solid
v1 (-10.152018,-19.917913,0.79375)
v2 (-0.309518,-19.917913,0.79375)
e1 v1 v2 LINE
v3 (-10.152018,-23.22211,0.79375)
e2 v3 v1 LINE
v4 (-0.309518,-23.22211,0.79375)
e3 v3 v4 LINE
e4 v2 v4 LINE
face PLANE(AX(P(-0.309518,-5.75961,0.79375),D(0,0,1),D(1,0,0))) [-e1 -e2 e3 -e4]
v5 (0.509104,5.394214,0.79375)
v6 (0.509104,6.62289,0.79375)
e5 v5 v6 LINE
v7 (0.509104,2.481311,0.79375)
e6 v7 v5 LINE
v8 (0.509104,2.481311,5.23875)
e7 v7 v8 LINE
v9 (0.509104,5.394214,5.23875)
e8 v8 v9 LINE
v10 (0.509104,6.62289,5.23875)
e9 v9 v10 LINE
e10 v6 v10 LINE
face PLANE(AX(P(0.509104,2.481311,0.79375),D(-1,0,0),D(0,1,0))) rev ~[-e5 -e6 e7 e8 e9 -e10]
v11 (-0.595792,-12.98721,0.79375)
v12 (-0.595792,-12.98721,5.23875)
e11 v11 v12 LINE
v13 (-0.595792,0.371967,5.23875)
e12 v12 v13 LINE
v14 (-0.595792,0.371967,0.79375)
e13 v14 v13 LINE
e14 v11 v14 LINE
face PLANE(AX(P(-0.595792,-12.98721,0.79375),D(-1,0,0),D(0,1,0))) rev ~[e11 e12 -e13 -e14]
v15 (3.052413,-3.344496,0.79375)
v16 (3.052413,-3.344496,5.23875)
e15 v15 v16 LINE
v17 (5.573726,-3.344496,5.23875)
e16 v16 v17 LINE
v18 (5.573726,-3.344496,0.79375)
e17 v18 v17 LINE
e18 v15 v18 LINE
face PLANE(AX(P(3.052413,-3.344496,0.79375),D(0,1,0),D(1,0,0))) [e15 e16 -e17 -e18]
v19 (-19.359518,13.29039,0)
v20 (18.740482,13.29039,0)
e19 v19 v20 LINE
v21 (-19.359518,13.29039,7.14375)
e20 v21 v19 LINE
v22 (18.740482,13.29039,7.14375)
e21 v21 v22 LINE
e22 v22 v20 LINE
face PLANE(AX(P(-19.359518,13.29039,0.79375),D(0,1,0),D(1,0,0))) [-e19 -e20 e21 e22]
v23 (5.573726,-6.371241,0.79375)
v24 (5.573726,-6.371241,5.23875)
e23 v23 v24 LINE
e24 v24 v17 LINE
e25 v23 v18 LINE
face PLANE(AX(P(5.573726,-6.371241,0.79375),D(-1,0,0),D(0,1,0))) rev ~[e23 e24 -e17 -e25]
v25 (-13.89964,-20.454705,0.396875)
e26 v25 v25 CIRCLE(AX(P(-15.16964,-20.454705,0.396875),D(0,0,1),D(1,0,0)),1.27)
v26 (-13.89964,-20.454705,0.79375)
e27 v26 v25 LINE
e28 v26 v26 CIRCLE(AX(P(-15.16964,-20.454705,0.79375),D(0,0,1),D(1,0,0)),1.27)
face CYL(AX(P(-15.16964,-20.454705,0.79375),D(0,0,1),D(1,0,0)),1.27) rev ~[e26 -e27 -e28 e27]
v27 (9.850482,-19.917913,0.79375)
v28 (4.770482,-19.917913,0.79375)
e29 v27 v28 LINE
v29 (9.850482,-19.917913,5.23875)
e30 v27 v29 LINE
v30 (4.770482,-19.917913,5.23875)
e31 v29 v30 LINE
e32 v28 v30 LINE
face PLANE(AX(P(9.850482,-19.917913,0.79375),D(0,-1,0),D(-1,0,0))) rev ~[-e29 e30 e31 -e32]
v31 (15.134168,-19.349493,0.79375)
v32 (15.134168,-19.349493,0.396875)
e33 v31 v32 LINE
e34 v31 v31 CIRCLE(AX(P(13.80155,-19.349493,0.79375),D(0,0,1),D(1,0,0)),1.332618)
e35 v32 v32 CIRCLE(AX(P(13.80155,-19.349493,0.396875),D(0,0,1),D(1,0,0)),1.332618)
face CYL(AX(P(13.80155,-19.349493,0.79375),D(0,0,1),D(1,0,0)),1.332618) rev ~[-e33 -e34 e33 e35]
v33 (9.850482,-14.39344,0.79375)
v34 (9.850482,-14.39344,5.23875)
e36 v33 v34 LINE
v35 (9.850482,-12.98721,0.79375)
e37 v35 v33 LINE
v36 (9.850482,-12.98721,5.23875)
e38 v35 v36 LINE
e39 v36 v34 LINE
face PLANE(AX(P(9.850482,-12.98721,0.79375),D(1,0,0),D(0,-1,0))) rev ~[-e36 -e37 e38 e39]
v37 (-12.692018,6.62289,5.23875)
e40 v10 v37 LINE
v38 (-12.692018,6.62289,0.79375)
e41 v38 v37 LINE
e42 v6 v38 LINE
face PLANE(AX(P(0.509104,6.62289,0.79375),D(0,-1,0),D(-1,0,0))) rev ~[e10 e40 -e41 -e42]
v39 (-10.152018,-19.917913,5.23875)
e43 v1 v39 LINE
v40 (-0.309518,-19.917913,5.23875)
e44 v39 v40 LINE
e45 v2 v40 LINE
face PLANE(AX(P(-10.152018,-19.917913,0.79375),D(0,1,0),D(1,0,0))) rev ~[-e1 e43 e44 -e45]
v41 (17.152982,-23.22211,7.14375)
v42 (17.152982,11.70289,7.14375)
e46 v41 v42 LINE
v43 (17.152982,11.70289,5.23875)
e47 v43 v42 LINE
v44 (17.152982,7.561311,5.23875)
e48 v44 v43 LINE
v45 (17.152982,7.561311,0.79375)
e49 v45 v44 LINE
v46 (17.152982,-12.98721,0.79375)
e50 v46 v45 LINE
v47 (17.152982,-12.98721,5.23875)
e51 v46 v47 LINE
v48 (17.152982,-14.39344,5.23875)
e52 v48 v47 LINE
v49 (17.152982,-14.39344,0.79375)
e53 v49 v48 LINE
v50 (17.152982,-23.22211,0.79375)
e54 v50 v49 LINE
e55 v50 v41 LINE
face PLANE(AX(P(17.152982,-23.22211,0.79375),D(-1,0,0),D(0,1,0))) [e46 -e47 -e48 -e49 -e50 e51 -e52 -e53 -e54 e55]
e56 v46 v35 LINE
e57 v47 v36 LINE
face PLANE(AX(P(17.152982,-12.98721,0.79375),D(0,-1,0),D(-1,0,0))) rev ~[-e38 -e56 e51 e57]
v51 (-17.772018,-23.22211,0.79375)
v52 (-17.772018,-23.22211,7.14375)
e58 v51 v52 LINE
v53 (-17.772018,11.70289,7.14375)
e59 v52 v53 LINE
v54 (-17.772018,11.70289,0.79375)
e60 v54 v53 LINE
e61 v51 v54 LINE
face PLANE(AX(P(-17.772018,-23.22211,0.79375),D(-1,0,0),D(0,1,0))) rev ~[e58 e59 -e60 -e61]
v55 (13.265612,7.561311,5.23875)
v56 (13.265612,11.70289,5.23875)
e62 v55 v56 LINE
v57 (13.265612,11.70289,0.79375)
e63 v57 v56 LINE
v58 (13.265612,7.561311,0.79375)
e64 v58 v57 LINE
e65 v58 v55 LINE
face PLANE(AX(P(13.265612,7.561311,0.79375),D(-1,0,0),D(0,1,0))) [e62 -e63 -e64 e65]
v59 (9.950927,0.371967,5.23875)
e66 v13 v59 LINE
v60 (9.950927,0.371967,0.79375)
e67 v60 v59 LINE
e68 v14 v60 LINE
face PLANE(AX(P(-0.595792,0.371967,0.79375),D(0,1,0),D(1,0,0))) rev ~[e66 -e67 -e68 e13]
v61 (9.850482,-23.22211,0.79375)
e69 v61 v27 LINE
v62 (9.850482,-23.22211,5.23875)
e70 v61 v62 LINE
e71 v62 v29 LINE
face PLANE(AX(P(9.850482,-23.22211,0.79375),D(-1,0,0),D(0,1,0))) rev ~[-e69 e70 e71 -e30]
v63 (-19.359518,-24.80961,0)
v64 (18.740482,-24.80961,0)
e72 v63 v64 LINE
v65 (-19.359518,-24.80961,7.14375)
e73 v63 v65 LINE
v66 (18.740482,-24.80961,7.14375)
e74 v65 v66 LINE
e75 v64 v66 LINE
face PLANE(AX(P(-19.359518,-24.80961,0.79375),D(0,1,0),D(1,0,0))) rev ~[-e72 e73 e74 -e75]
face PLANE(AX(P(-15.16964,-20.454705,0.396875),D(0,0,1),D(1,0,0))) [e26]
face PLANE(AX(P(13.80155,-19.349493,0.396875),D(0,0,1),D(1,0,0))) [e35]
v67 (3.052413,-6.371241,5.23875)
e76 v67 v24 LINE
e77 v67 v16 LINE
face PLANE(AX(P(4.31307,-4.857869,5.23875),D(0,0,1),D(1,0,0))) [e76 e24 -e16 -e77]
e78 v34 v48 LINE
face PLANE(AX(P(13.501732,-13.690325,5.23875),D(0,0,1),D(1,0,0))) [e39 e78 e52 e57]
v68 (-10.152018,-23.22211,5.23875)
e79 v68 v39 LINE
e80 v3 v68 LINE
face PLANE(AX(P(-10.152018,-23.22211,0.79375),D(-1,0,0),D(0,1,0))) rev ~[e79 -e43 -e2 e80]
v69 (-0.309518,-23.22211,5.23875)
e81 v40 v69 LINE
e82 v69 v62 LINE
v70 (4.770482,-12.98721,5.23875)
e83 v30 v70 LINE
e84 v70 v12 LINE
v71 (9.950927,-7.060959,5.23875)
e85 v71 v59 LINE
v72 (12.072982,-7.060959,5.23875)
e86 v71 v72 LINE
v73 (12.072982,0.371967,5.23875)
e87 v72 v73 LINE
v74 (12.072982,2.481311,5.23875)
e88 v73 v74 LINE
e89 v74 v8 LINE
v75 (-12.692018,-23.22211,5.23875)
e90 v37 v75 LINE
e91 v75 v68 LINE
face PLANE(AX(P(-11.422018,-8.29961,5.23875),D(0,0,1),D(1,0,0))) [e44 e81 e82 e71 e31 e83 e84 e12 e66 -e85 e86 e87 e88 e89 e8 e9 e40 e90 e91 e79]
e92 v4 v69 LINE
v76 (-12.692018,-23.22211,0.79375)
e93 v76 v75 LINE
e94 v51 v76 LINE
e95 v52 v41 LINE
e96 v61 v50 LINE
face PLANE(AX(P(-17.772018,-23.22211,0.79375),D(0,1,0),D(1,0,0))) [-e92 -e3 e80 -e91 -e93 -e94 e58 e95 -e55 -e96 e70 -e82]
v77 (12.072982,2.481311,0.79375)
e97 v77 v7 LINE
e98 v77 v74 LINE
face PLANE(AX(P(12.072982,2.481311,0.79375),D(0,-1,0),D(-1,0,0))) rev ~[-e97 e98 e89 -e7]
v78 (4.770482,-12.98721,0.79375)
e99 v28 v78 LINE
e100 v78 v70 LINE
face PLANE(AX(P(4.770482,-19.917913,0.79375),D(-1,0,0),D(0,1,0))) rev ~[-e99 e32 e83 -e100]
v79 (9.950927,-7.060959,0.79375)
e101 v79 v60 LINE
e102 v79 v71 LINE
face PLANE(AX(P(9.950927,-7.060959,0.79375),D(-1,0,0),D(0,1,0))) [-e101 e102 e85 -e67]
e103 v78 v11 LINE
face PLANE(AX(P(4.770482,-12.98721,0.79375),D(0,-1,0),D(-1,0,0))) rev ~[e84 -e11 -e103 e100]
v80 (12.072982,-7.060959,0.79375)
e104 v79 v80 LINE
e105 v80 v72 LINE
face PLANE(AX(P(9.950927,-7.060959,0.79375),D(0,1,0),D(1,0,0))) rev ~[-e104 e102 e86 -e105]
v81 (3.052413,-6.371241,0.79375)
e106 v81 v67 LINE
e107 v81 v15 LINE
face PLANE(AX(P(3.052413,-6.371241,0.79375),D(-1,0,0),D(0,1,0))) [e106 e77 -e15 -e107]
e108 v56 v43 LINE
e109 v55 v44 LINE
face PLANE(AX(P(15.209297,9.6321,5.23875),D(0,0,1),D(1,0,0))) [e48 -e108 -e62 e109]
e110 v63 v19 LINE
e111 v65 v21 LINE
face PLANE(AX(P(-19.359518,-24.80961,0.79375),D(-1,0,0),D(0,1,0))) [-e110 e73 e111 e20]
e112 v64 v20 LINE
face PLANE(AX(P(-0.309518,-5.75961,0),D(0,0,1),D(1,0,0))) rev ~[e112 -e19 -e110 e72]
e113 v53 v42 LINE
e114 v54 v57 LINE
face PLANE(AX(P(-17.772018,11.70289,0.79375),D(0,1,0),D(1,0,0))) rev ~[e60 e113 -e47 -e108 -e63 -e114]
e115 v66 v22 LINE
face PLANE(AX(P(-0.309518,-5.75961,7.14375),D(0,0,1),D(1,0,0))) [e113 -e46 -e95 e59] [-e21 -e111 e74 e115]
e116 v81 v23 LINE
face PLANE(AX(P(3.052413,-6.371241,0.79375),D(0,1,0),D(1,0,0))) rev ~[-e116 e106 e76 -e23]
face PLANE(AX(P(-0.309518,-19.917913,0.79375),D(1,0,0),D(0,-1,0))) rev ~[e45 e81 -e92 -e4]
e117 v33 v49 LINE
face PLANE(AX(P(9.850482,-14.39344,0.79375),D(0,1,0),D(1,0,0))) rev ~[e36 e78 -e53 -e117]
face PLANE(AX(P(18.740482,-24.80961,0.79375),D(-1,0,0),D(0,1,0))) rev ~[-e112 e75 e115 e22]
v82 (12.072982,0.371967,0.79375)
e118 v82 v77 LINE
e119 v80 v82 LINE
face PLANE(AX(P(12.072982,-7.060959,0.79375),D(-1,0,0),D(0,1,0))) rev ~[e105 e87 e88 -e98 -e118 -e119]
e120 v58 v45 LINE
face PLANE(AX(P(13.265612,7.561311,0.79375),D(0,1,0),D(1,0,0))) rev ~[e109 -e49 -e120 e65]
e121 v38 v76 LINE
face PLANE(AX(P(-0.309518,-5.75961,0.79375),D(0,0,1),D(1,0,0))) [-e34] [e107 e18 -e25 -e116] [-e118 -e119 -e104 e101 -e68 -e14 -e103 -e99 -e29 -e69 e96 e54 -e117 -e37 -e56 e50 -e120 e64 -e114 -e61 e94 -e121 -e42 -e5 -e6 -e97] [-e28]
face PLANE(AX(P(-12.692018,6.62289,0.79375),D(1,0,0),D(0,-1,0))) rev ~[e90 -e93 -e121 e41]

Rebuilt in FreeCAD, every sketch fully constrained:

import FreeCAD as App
import Part
import Sketcher
Q = App.Units.Quantity


def add_polygon(sketch, points):
    """Adds a closed chain of lines whose ends are joined by coincident constraints."""
    first, n = sketch.GeometryCount, len(points)
    for a, b in zip(points, points[1:] + points[:1]):
        sketch.addGeometry(Part.LineSegment(App.Vector(*a, 0), App.Vector(*b, 0)), False)
    for i in range(n):
        sketch.addConstraint(Sketcher.Constraint("Coincident", first + i, 2, first + (i + 1) % n, 1))

doc = App.newDocument("Part")
body = doc.addObject("PartDesign::Body", "Body")

# Sketch on XY plane
sketch1 = body.newObject("Sketcher::SketchObject", "Sketch")
sketch1.AttachmentSupport = (doc.getObject("XY_Plane"), [""])
sketch1.MapMode = "FlatFace"
add_polygon(sketch1, [(-19.359518, 13.29039), (-19.359518, -24.80961), (18.740482, -24.80961), (18.740482, 13.29039)])  # lines 0-3
sketch1.addConstraint([
    Sketcher.Constraint("Vertical", 0),
    Sketcher.Constraint("Horizontal", 1),
    Sketcher.Constraint("Vertical", 2),
    Sketcher.Constraint("Horizontal", 3),
    Sketcher.Constraint("Equal", 3, 0),
    Sketcher.Constraint("DistanceX", 1, 1, 1, 2, Q("1.5 in")),
    Sketcher.Constraint("DistanceY", 0, 2, -1, 1, Q("24.80961 mm")),
    Sketcher.Constraint("DistanceX", 0, 2, -1, 1, Q("19.359518 mm")),
])
pad1 = body.newObject("PartDesign::Pad", "Pad")
pad1.Profile = sketch1
pad1.Length = Q("0.03125 in")

# Sketch on XY plane
sketch2 = body.newObject("Sketcher::SketchObject", "Sketch001")
sketch2.AttachmentSupport = (doc.getObject("XY_Plane"), [""])
sketch2.MapMode = "FlatFace"
sketch2.AttachmentOffset = App.Placement(App.Vector(0, 0, 0.03125 * 25.4), App.Rotation())
add_polygon(sketch2, [(-19.359518, 13.29039), (-19.359518, -24.80961), (18.740482, -24.80961), (18.740482, 13.29039)])  # lines 0-3
add_polygon(sketch2, [(17.152982, -23.22211), (-17.772018, -23.22211), (-17.772018, 11.70289), (17.152982, 11.70289)])  # lines 4-7
sketch2.addConstraint([
    Sketcher.Constraint("Vertical", 0),
    Sketcher.Constraint("Horizontal", 1),
    Sketcher.Constraint("Vertical", 2),
    Sketcher.Constraint("Horizontal", 3),
    Sketcher.Constraint("Horizontal", 4),
    Sketcher.Constraint("Vertical", 5),
    Sketcher.Constraint("Horizontal", 6),
    Sketcher.Constraint("Vertical", 7),
    Sketcher.Constraint("Equal", 3, 0),
    Sketcher.Constraint("Equal", 6, 5),
    Sketcher.Constraint("DistanceX", 1, 1, 1, 2, Q("1.5 in")),
    Sketcher.Constraint("DistanceX", 4, 2, 4, 1, Q("1.375 in")),
    Sketcher.Constraint("DistanceX", 0, 2, 4, 2, Q("0.0625 in")),
    Sketcher.Constraint("DistanceY", 0, 2, 4, 2, Q("0.0625 in")),
    Sketcher.Constraint("DistanceY", 0, 2, -1, 1, Q("24.80961 mm")),
    Sketcher.Constraint("DistanceX", 0, 2, -1, 1, Q("19.359518 mm")),
])
pad2 = body.newObject("PartDesign::Pad", "Pad001")
pad2.Profile = sketch2
pad2.Length = Q("0.25 in")

# Sketch on XY plane
sketch3 = body.newObject("Sketcher::SketchObject", "Sketch002")
sketch3.AttachmentSupport = (doc.getObject("XY_Plane"), [""])
sketch3.MapMode = "FlatFace"
sketch3.AttachmentOffset = App.Placement(App.Vector(0, 0, 0.03125 * 25.4), App.Rotation())
add_polygon(sketch3, [(-12.692018, 6.62289), (-12.692018, -23.22211), (-10.152018, -23.22211), (-10.152018, -19.917913), (-0.309518, -19.917913), (-0.309518, -23.22211), (9.850482, -23.22211), (9.850482, -19.917913), (4.770482, -19.917913), (4.770482, -12.98721), (-0.595792, -12.98721), (-0.595792, 0.371967), (9.950927, 0.371967), (9.950927, -7.060959), (12.072982, -7.060959), (12.072982, 0.371967), (12.072982, 2.481311), (0.509104, 2.481311), (0.509104, 5.394214), (0.509104, 6.62289)])  # lines 0-19
add_polygon(sketch3, [(17.152982, -14.39344), (17.152982, -12.98721), (9.850482, -12.98721), (9.850482, -14.39344)])  # lines 20-23
add_polygon(sketch3, [(13.265612, 11.70289), (13.265612, 7.561311), (17.152982, 7.561311), (17.152982, 11.70289)])  # lines 24-27
add_polygon(sketch3, [(3.052413, -3.344496), (3.052413, -6.371241), (5.573726, -6.371241), (5.573726, -3.344496)])  # lines 28-31
sketch3.addConstraint([
    Sketcher.Constraint("Vertical", 0),
    Sketcher.Constraint("Horizontal", 1),
    Sketcher.Constraint("Vertical", 2),
    Sketcher.Constraint("Horizontal", 3),
    Sketcher.Constraint("Vertical", 4),
    Sketcher.Constraint("Horizontal", 5),
    Sketcher.Constraint("Vertical", 6),
    Sketcher.Constraint("Horizontal", 7),
    Sketcher.Constraint("Vertical", 8),
    Sketcher.Constraint("Horizontal", 9),
    Sketcher.Constraint("Vertical", 10),
    Sketcher.Constraint("Horizontal", 11),
    Sketcher.Constraint("Vertical", 12),
    Sketcher.Constraint("Horizontal", 13),
    Sketcher.Constraint("Vertical", 14),
    Sketcher.Constraint("Vertical", 15),
    Sketcher.Constraint("Horizontal", 16),
    Sketcher.Constraint("Vertical", 17),
    Sketcher.Constraint("Vertical", 18),
    Sketcher.Constraint("Horizontal", 19),
    Sketcher.Constraint("Vertical", 20),
    Sketcher.Constraint("Horizontal", 21),
    Sketcher.Constraint("Vertical", 22),
    Sketcher.Constraint("Horizontal", 23),
    Sketcher.Constraint("Vertical", 24),
    Sketcher.Constraint("Horizontal", 25),
    Sketcher.Constraint("Vertical", 26),
    Sketcher.Constraint("Horizontal", 27),
    Sketcher.Constraint("Vertical", 28),
    Sketcher.Constraint("Horizontal", 29),
    Sketcher.Constraint("Vertical", 30),
    Sketcher.Constraint("Horizontal", 31),
    Sketcher.Constraint("Horizontal", 1, 2, 4, 2),
    Sketcher.Constraint("Horizontal", 3, 2, 6, 2),
    Sketcher.Constraint("Horizontal", 11, 2, 14, 2),
    Sketcher.Constraint("Horizontal", 9, 2, 20, 2),
    Sketcher.Constraint("Vertical", 6, 2, 21, 2),
    Sketcher.Constraint("Vertical", 23, 2, 25, 2),
    Sketcher.Constraint("DistanceX", 1, 1, 1, 2, Q("0.1 in")),
    Sketcher.Constraint("DistanceX", 5, 1, 5, 2, Q("0.4 in")),
    Sketcher.Constraint("DistanceX", 7, 2, 7, 1, Q("0.2 in")),
    Sketcher.Constraint("DistanceX", 13, 2, 20, 2, Q("0.2 in")),
    Sketcher.Constraint("DistanceY", 15, 2, 24, 2, Q("0.2 in")),
    Sketcher.Constraint("DistanceY", 0, 2, 0, 1, Q("1.175 in")),
    Sketcher.Constraint("DistanceX", 3, 1, 3, 2, Q("0.3875 in")),
    Sketcher.Constraint("DistanceX", 21, 2, 21, 1, Q("0.2875 in")),
    Sketcher.Constraint("DistanceX", 10, 2, 16, 2, Q("0.0434998 in")),
    Sketcher.Constraint("DistanceX", 11, 1, 11, 2, Q("10.546718 mm")),
    Sketcher.Constraint("DistanceX", 16, 2, 16, 1, Q("11.563879 mm")),
    Sketcher.Constraint("DistanceX", 25, 1, 25, 2, Q("3.887371 mm")),
    Sketcher.Constraint("DistanceY", 20, 1, 20, 2, Q("1.406229 mm")),
    Sketcher.Constraint("DistanceY", 24, 2, 24, 1, Q("4.141579 mm")),
    Sketcher.Constraint("DistanceY", 4, 2, 8, 2, Q("10.2349 mm")),
    Sketcher.Constraint("DistanceX", 29, 2, 12, 2, Q("4.377201 mm")),
    Sketcher.Constraint("DistanceX", 29, 1, 29, 2, Q("2.521313 mm")),
    Sketcher.Constraint("DistanceY", 2, 1, 2, 2, Q("3.304198 mm")),
    Sketcher.Constraint("DistanceY", 10, 1, 10, 2, Q("13.359178 mm")),
    Sketcher.Constraint("DistanceY", 12, 2, 12, 1, Q("7.432926 mm")),
    Sketcher.Constraint("DistanceY", 15, 1, 15, 2, Q("2.109344 mm")),
    Sketcher.Constraint("DistanceY", 17, 1, 17, 2, Q("2.912903 mm")),
    Sketcher.Constraint("DistanceY", 28, 2, 28, 1, Q("3.026745 mm")),
    Sketcher.Constraint("DistanceY", 0, 2, -1, 1, Q("23.22211 mm")),
    Sketcher.Constraint("DistanceX", 9, 2, -1, 1, Q("0.595792 mm")),
    Sketcher.Constraint("DistanceY", 28, 2, -1, 1, Q("6.371241 mm")),
])
pad3 = body.newObject("PartDesign::Pad", "Pad002")
pad3.Profile = sketch3
pad3.Length = Q("0.175 in")

# Sketch on XY plane
sketch4 = body.newObject("Sketcher::SketchObject", "Sketch003")
sketch4.AttachmentSupport = (doc.getObject("XY_Plane"), [""])
sketch4.MapMode = "FlatFace"
sketch4.AttachmentOffset = App.Placement(App.Vector(0, 0, 0.03125 * 25.4), App.Rotation())
sketch4.addGeometry([
    Part.Circle(App.Vector(13.80155, -19.349493, 0), App.Vector(0, 0, 1), 1.332618),
    Part.Circle(App.Vector(-15.16964, -20.454705, 0), App.Vector(0, 0, 1), 1.27),
], False)
sketch4.addConstraint([
    Sketcher.Constraint("Diameter", 1, Q("0.1 in")),
    Sketcher.Constraint("Diameter", 0, Q("2.665235 mm")),
    Sketcher.Constraint("DistanceX", -1, 1, 0, 3, Q("13.80155 mm")),
    Sketcher.Constraint("DistanceX", 1, 3, -1, 1, Q("15.16964 mm")),
    Sketcher.Constraint("DistanceY", 0, 3, -1, 1, Q("19.349493 mm")),
    Sketcher.Constraint("DistanceY", 1, 3, -1, 1, Q("20.454705 mm")),
])
pocket1 = body.newObject("PartDesign::Pocket", "Pocket")
pocket1.Profile = sketch4
pocket1.Length = Q("0.015625 in")

doc.recompute()
